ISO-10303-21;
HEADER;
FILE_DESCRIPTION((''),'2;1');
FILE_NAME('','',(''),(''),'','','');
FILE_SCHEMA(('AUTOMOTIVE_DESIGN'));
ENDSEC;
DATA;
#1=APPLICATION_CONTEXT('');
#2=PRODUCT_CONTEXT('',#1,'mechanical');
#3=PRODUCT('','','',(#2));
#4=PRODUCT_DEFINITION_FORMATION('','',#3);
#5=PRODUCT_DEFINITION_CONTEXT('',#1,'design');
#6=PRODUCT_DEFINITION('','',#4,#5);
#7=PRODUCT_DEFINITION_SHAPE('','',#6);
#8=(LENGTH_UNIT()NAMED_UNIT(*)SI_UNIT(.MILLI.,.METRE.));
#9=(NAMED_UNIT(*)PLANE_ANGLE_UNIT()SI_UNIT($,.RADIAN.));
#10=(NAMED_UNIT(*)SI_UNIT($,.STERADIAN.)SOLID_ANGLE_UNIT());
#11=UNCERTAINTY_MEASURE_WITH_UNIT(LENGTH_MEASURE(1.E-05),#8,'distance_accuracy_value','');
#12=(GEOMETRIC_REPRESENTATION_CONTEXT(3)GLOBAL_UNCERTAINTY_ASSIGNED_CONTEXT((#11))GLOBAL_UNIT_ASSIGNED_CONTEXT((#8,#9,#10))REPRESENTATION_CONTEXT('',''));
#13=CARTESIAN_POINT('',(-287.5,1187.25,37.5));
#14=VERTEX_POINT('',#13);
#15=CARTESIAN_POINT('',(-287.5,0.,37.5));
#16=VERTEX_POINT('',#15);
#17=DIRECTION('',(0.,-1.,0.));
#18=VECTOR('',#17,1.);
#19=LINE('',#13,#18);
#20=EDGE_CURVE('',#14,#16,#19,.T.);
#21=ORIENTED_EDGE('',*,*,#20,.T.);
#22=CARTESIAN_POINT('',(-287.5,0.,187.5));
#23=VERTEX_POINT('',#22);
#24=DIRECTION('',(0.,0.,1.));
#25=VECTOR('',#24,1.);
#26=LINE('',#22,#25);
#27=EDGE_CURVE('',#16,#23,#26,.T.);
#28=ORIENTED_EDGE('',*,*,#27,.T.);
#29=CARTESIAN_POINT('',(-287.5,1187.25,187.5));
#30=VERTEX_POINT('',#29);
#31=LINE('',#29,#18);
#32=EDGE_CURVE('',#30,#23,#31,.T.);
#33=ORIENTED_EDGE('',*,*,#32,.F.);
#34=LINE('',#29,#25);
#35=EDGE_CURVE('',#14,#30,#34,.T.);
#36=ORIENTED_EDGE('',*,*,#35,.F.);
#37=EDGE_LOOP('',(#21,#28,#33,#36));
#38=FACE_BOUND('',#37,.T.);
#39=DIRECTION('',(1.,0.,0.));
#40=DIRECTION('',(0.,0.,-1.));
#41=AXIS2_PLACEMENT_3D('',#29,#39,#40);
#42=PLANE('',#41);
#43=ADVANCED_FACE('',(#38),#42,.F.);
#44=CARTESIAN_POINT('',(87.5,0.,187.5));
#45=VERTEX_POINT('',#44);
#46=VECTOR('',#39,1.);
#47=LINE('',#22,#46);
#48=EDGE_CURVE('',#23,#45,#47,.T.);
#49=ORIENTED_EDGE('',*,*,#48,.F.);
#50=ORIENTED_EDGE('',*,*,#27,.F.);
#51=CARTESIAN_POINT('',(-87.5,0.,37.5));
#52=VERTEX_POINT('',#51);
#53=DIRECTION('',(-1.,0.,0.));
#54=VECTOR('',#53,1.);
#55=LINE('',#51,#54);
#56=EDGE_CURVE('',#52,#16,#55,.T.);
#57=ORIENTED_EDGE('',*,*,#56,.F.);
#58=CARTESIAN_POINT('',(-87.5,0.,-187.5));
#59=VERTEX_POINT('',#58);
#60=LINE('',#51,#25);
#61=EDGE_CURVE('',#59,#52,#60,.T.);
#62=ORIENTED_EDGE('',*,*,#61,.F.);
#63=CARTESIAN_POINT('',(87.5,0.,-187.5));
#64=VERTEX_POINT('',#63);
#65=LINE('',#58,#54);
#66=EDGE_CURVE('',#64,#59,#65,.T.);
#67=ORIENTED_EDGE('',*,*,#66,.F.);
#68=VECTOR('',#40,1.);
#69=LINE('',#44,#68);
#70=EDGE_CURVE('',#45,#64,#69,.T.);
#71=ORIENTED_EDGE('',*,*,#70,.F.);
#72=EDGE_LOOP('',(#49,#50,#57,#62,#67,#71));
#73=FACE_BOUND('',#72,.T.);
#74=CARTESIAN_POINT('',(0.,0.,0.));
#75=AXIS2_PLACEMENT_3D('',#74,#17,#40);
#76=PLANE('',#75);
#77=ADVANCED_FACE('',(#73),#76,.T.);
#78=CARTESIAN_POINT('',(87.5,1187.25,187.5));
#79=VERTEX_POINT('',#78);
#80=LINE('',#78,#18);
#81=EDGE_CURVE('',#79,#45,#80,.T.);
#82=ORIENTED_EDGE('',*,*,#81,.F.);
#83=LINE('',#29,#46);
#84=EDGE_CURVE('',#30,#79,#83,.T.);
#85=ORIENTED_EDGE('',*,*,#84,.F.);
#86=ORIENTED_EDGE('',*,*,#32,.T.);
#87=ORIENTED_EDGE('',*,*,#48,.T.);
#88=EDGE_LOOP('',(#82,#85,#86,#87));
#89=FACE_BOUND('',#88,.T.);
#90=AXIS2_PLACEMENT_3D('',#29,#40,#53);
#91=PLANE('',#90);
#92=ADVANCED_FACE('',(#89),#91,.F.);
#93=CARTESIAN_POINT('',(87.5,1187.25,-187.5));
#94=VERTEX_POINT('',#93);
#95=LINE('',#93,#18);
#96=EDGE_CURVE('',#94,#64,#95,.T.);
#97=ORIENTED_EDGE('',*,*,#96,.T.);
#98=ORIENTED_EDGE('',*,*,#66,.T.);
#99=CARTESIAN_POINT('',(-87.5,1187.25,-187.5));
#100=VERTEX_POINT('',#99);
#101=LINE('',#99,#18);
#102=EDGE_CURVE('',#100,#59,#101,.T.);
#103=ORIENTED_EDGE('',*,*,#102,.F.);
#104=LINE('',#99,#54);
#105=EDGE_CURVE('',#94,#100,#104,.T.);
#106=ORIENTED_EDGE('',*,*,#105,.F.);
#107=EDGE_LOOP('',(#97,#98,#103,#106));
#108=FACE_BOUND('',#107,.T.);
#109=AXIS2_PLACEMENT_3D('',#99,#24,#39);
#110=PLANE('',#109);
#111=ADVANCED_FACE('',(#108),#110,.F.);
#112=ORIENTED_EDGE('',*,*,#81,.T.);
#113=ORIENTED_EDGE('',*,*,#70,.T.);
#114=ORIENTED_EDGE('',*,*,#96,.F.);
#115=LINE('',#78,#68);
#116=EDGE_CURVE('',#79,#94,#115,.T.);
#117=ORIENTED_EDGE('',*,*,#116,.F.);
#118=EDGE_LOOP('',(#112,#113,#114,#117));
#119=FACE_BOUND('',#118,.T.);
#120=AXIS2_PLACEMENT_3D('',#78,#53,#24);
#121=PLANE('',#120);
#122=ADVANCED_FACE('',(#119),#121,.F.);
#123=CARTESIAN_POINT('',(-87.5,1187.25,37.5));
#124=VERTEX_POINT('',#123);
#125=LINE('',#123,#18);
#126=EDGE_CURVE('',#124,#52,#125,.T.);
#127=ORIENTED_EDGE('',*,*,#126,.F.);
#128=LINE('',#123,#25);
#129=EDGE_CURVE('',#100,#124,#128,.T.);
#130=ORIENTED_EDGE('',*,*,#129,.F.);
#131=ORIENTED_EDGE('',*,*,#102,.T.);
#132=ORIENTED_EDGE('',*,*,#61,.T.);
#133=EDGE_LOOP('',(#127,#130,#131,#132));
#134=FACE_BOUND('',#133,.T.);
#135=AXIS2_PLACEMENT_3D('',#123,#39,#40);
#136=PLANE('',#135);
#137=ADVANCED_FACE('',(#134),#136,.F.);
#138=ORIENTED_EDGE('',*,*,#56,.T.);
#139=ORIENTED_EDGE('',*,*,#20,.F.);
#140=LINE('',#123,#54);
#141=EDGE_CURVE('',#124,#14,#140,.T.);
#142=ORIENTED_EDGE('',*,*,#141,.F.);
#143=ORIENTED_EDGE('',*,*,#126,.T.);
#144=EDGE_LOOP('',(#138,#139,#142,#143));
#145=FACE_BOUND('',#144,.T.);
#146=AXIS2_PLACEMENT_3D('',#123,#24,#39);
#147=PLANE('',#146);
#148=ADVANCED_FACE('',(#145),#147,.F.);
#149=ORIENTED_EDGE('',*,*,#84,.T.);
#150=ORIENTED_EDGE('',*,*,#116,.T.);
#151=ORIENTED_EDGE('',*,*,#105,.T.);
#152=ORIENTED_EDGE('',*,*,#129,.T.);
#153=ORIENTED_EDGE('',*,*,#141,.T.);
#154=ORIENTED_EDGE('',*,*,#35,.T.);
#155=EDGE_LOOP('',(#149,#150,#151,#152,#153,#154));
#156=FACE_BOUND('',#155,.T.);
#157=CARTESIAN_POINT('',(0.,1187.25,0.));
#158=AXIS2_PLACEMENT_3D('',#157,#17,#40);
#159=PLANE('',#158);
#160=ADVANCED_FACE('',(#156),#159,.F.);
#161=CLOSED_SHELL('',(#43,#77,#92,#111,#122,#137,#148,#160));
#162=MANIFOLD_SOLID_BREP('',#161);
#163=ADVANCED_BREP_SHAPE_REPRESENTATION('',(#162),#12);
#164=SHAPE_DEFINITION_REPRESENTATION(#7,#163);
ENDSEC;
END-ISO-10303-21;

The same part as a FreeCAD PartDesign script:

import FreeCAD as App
import Part
import Sketcher

doc = App.newDocument("Part")
body = doc.addObject("PartDesign::Body", "Body")

# Sketch on XZ plane
sketch1 = body.newObject("Sketcher::SketchObject", "Sketch")
sketch1.AttachmentSupport = (doc.getObject("XZ_Plane"), [""])
sketch1.MapMode = "FlatFace"
sketch1.addGeometry(Part.LineSegment(App.Vector(-288, 188, 0), App.Vector(88, 188, 0)), False)
sketch1.addGeometry(Part.LineSegment(App.Vector(88, 188, 0), App.Vector(88, -188, 0)), False)
sketch1.addGeometry(Part.LineSegment(App.Vector(88, -188, 0), App.Vector(-88, -188, 0)), False)
sketch1.addGeometry(Part.LineSegment(App.Vector(-88, -188, 0), App.Vector(-88, 38, 0)), False)
sketch1.addGeometry(Part.LineSegment(App.Vector(-88, 38, 0), App.Vector(-288, 38, 0)), False)
sketch1.addGeometry(Part.LineSegment(App.Vector(-288, 38, 0), App.Vector(-288, 188, 0)), False)
sketch1.addConstraint(Sketcher.Constraint("Coincident", 0, 2, 1, 1))
sketch1.addConstraint(Sketcher.Constraint("Coincident", 1, 2, 2, 1))
sketch1.addConstraint(Sketcher.Constraint("Coincident", 2, 2, 3, 1))
sketch1.addConstraint(Sketcher.Constraint("Coincident", 3, 2, 4, 1))
sketch1.addConstraint(Sketcher.Constraint("Coincident", 4, 2, 5, 1))
sketch1.addConstraint(Sketcher.Constraint("Coincident", 5, 2, 0, 1))
sketch1.addConstraint(Sketcher.Constraint("Horizontal", 0))
sketch1.addConstraint(Sketcher.Constraint("Vertical", 1))
sketch1.addConstraint(Sketcher.Constraint("Horizontal", 2))
sketch1.addConstraint(Sketcher.Constraint("Vertical", 3))
sketch1.addConstraint(Sketcher.Constraint("Horizontal", 4))
sketch1.addConstraint(Sketcher.Constraint("Vertical", 5))
sketch1.addConstraint(Sketcher.Constraint("Symmetric", 0, 2, 2, 2, -1, 1))
sketch1.addConstraint(Sketcher.Constraint("Equal", 0, 1))
sketch1.addConstraint(Sketcher.Constraint("DistanceX", 0, 1, 0, 2, 375.0))
sketch1.addConstraint(Sketcher.Constraint("DistanceX", 2, 2, 2, 1, 175.0))
sketch1.addConstraint(Sketcher.Constraint("DistanceY", 3, 1, 3, 2, 225.0))
pad1 = body.newObject("PartDesign::Pad", "Pad")
pad1.Profile = sketch1
pad1.Length = 1187.25
pad1.Reversed = True

doc.recompute()
